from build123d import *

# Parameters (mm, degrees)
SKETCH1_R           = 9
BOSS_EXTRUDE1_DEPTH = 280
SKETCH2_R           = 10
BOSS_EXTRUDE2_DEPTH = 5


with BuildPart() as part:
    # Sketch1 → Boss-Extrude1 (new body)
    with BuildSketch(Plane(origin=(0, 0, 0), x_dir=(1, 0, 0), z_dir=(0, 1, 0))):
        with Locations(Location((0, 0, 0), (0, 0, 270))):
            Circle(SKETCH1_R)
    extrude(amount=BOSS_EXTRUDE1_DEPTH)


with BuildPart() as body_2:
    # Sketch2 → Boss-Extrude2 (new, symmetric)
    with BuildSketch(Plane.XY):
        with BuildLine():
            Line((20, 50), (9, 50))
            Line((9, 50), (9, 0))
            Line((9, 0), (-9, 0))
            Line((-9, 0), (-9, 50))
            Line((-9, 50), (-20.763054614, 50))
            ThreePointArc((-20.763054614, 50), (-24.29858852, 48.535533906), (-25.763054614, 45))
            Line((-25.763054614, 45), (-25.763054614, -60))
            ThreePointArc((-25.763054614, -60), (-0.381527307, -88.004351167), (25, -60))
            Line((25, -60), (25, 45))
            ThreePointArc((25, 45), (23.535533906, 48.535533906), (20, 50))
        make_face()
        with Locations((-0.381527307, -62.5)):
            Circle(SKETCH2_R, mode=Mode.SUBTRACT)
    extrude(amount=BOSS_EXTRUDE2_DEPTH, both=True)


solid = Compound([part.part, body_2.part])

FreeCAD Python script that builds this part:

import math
import FreeCAD as App
import Part
import Sketcher
from FreeCAD import Vector
Q = App.Units.Quantity

doc = App.newDocument("Part")
body = doc.addObject("PartDesign::Body", "Body")

# Sketch on XZ plane
sketch1 = doc.addObject("Sketcher::SketchObject", "Sketch")
body.addObject(sketch1)
sketch1.AttachmentSupport = (doc.XZ_Plane, [""])
sketch1.MapMode = "FlatFace"
sketch1.addGeometry(Part.Circle(Vector(0, 0, 0), Vector(0, 0, 1), 9), False)
sketch1.addConstraint(Sketcher.Constraint("Coincident", 0, 3, -1, 1))
sketch1.addConstraint(Sketcher.Constraint("Diameter", 0, Q("18 mm")))
pad1 = doc.addObject("PartDesign::Pad", "Pad")
body.addObject(pad1)
pad1.Profile = sketch1
pad1.Length = 280
pad1.Reversed = True
body2 = doc.addObject("PartDesign::Body", "Body001")

# Sketch on XY plane
sketch2 = doc.addObject("Sketcher::SketchObject", "Sketch001")
body2.addObject(sketch2)
sketch2.AttachmentSupport = (doc.getObject("XY_Plane001"), [""])
sketch2.MapMode = "FlatFace"
sketch2.addGeometry(Part.LineSegment(Vector(20, 50, 0), Vector(9, 50, 0)), False)
sketch2.addGeometry(Part.LineSegment(Vector(9, 50, 0), Vector(9, 0, 0)), False)
sketch2.addGeometry(Part.LineSegment(Vector(9, 0, 0), Vector(-9, 0, 0)), False)
sketch2.addGeometry(Part.LineSegment(Vector(-9, 0, 0), Vector(-9, 50, 0)), False)
sketch2.addGeometry(Part.LineSegment(Vector(-9, 50, 0), Vector(-21, 50, 0)), False)
sketch2.addGeometry(Part.ArcOfCircle(Part.Circle(Vector(-21, 45, 0), Vector(0, 0, 1), 5), math.radians(90), math.radians(180)), False)
sketch2.addGeometry(Part.LineSegment(Vector(-26, 45, 0), Vector(-26, -60, 0)), False)
sketch2.addGeometry(Part.ArcOfCircle(Part.Circle(Vector(0, -62, 0), Vector(0, 0, 1), 26), math.radians(174), math.radians(366)), False)
sketch2.addGeometry(Part.LineSegment(Vector(25, -60, 0), Vector(25, 45, 0)), False)
sketch2.addGeometry(Part.ArcOfCircle(Part.Circle(Vector(20, 45, 0), Vector(0, 0, 1), 5), math.radians(0), math.radians(90)), False)
sketch2.addGeometry(Part.Circle(Vector(0, -62, 0), Vector(0, 0, 1), 10), False)
sketch2.addConstraint(Sketcher.Constraint("Coincident", 0, 2, 1, 1))
sketch2.addConstraint(Sketcher.Constraint("Coincident", 1, 2, 2, 1))
sketch2.addConstraint(Sketcher.Constraint("Coincident", 2, 2, 3, 1))
sketch2.addConstraint(Sketcher.Constraint("Coincident", 3, 2, 4, 1))
sketch2.addConstraint(Sketcher.Constraint("Tangent", 4, 2, 5, 1))
sketch2.addConstraint(Sketcher.Constraint("Tangent", 5, 2, 6, 1))
sketch2.addConstraint(Sketcher.Constraint("Coincident", 6, 2, 7, 1))
sketch2.addConstraint(Sketcher.Constraint("Coincident", 7, 2, 8, 1))
sketch2.addConstraint(Sketcher.Constraint("Tangent", 8, 2, 9, 1))
sketch2.addConstraint(Sketcher.Constraint("Tangent", 9, 2, 0, 1))
sketch2.addConstraint(Sketcher.Constraint("Horizontal", 0))
sketch2.addConstraint(Sketcher.Constraint("Vertical", 1))
sketch2.addConstraint(Sketcher.Constraint("Horizontal", 2))
sketch2.addConstraint(Sketcher.Constraint("Vertical", 3))
sketch2.addConstraint(Sketcher.Constraint("Horizontal", 4))
sketch2.addConstraint(Sketcher.Constraint("Vertical", 6))
sketch2.addConstraint(Sketcher.Constraint("Vertical", 8))
sketch2.addConstraint(Sketcher.Constraint("Coincident", 10, 3, 7, 3))
sketch2.addConstraint(Sketcher.Constraint("Equal", 5, 9))
sketch2.addConstraint(Sketcher.Constraint("Symmetric", 1, 2, 2, 2, -1, 1))
sketch2.addConstraint(Sketcher.Constraint("Horizontal", 5, 3, 9, 3))
sketch2.addConstraint(Sketcher.Constraint("Horizontal", 6, 2, 7, 2))
sketch2.addConstraint(Sketcher.Constraint("Diameter", 10, Q("20 mm")))
sketch2.addConstraint(Sketcher.Constraint("Radius", 5, Q("5 mm")))
sketch2.addConstraint(Sketcher.Constraint("DistanceX", 0, 2, 0, 1, Q("11 mm")))
sketch2.addConstraint(Sketcher.Constraint("DistanceX", 2, 2, 2, 1, Q("18 mm")))
sketch2.addConstraint(Sketcher.Constraint("DistanceY", 1, 2, 1, 1, Q("50 mm")))
sketch2.addConstraint(Sketcher.Constraint("DistanceY", 6, 2, 6, 1, Q("105 mm")))
sketch2.addConstraint(Sketcher.Constraint("DistanceY", 7, 3, -1, 1, Q("62.5 mm")))
sketch2.addConstraint(Sketcher.Constraint("Radius", 7, Q("25.504351 mm")))
pad2 = doc.addObject("PartDesign::Pad", "Pad001")
body2.addObject(pad2)
pad2.Profile = sketch2
pad2.Length = 10
pad2.Midplane = True

doc.recompute()
